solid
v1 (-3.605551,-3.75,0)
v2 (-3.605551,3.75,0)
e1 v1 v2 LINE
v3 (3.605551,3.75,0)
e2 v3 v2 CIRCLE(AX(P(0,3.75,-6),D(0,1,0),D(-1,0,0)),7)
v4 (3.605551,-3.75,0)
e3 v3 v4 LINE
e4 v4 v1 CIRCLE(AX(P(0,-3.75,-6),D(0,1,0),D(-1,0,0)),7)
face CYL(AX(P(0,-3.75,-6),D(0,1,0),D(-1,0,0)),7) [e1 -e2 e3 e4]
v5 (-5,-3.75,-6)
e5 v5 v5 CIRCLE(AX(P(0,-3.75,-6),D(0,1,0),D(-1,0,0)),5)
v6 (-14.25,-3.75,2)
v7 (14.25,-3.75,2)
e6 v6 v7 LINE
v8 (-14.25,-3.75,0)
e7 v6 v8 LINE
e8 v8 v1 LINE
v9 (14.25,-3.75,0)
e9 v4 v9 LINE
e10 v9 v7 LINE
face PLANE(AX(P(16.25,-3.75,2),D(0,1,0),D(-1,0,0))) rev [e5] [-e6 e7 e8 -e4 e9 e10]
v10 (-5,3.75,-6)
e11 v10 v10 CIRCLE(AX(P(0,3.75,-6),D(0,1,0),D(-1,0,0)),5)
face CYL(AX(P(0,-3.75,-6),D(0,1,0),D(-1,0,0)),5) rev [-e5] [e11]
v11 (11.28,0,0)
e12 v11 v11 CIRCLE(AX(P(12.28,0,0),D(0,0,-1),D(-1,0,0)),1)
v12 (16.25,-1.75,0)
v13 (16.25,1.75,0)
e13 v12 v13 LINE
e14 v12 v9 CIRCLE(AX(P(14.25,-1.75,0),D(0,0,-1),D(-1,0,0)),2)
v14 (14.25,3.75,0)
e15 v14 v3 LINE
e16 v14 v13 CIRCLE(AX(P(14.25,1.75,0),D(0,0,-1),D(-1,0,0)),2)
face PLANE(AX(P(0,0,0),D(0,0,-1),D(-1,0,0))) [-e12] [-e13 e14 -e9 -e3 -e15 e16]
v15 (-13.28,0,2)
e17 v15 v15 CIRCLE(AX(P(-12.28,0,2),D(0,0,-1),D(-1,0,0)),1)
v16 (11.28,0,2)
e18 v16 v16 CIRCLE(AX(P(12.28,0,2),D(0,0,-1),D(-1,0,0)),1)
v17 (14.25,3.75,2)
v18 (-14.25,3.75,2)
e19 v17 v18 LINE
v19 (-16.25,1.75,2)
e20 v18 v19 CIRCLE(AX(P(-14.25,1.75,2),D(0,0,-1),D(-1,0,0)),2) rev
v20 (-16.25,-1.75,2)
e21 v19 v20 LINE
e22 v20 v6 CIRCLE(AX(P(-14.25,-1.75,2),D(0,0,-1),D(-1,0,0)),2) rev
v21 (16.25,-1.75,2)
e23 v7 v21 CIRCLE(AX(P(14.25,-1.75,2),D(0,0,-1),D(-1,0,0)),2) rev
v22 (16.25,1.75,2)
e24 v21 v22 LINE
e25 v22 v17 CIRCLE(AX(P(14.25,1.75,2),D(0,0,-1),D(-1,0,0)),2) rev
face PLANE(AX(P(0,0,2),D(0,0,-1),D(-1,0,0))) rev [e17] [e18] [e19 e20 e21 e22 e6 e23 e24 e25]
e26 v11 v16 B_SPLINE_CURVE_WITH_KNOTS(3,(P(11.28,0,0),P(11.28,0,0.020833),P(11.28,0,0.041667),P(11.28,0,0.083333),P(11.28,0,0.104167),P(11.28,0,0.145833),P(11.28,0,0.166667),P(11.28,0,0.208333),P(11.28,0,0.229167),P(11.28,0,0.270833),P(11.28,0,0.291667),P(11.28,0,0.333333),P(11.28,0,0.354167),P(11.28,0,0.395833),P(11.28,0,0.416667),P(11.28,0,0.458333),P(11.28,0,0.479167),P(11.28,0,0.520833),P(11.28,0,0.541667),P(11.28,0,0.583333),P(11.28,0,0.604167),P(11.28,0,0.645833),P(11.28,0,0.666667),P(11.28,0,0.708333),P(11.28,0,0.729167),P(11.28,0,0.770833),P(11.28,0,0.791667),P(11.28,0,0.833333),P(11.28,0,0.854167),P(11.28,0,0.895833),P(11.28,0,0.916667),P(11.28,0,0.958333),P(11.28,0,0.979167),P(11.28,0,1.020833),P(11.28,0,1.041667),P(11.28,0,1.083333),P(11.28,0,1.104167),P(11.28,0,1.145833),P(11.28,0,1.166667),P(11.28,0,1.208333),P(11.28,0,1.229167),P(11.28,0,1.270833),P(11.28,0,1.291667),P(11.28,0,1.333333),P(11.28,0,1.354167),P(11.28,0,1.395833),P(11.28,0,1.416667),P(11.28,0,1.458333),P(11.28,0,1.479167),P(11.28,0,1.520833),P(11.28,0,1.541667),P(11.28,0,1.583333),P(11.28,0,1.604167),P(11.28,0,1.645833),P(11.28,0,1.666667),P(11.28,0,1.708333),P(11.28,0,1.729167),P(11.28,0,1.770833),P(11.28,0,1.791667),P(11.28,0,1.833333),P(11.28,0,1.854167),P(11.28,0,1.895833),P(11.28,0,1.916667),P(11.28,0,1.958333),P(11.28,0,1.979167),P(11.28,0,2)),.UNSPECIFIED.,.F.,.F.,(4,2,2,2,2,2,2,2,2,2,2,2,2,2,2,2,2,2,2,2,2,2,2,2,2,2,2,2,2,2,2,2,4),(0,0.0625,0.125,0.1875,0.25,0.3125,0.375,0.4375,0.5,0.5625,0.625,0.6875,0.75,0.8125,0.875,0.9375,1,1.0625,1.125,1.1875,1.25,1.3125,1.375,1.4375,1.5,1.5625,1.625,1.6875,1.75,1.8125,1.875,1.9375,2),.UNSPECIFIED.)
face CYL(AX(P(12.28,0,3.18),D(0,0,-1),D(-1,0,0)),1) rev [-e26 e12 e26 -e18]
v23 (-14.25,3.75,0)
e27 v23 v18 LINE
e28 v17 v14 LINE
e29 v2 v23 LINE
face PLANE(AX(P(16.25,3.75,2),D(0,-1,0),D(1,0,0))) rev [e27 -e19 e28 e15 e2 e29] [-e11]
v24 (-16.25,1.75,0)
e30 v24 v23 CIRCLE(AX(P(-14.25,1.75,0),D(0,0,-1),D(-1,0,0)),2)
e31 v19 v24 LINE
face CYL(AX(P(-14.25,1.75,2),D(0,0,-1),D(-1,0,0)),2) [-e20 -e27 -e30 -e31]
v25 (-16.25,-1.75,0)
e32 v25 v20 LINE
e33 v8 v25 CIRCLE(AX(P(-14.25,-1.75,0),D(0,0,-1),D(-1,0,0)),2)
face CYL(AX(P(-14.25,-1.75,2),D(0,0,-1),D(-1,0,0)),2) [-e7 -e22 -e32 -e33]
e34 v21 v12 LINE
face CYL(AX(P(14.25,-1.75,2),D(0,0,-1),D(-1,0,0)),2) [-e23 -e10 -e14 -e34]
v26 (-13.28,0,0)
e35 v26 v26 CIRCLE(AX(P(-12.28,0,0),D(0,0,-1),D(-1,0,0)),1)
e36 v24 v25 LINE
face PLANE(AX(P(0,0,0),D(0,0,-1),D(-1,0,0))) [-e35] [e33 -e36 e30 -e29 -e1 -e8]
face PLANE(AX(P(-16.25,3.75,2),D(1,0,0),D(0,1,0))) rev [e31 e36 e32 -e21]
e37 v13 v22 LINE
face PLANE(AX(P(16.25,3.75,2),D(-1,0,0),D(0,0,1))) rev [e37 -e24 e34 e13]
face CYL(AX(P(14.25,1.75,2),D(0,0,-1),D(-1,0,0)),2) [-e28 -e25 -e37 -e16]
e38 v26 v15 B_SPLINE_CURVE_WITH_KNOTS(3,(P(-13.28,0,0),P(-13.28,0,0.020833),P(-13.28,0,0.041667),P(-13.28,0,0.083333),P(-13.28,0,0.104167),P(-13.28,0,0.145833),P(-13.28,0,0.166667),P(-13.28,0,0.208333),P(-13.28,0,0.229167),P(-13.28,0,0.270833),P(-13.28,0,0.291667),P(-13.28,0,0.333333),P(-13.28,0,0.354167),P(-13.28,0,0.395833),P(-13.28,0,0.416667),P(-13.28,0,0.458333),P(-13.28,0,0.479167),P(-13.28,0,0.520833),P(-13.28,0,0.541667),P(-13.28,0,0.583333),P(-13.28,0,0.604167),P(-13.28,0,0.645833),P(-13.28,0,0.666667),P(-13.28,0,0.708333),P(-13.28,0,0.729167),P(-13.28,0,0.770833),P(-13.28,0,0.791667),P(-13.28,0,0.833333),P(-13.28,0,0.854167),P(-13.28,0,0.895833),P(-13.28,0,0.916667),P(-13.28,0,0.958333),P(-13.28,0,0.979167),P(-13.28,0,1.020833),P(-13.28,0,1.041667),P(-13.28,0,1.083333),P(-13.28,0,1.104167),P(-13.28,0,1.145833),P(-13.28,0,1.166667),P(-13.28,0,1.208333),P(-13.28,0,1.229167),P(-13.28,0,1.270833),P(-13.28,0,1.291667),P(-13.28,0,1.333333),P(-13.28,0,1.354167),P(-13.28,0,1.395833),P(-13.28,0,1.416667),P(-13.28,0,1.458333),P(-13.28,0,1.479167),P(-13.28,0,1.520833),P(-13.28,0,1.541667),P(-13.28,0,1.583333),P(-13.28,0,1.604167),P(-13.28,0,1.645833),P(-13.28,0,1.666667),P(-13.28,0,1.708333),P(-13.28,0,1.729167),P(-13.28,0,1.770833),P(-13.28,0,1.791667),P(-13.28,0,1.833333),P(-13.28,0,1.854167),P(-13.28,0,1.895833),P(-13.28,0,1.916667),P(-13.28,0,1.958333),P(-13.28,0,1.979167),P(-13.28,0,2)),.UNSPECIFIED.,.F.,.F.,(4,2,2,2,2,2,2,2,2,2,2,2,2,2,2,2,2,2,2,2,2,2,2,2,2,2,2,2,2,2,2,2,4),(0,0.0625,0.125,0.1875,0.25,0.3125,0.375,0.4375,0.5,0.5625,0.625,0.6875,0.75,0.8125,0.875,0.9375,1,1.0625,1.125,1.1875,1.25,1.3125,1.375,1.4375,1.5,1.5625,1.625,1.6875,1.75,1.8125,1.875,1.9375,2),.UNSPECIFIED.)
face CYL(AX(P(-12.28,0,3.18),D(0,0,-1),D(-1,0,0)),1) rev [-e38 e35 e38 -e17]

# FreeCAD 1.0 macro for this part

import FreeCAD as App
import Part
import Sketcher


def edges_at(feature, points):
    """Names of the edges that pass closest to the given points."""
    edges = feature.Shape.Edges
    near = lambda p: min(range(len(edges)), key=lambda i: edges[i].distToShape(Part.Vertex(*p))[0])
    return sorted({f"Edge{near(p) + 1}" for p in points})

doc = App.newDocument("Part")
body = doc.addObject("PartDesign::Body", "Body")

# Sketch on XY plane
sketch1 = body.newObject("Sketcher::SketchObject", "Sketch")
sketch1.AttachmentSupport = (doc.getObject("XY_Plane"), [""])
sketch1.MapMode = "FlatFace"
sketch1.addGeometry([
    Part.LineSegment(App.Vector(-16, 4, 0), App.Vector(-16, -4, 0)),
    Part.LineSegment(App.Vector(-16, -4, 0), App.Vector(16, -4, 0)),
    Part.LineSegment(App.Vector(16, -4, 0), App.Vector(16, 4, 0)),
    Part.LineSegment(App.Vector(16, 4, 0), App.Vector(-16, 4, 0)),
], False)
sketch1.addConstraint([
    Sketcher.Constraint("Coincident", 0, 2, 1, 1),
    Sketcher.Constraint("Coincident", 1, 2, 2, 1),
    Sketcher.Constraint("Coincident", 2, 2, 3, 1),
    Sketcher.Constraint("Coincident", 3, 2, 0, 1),
    Sketcher.Constraint("Vertical", 0),
    Sketcher.Constraint("Horizontal", 1),
    Sketcher.Constraint("Vertical", 2),
    Sketcher.Constraint("Horizontal", 3),
    Sketcher.Constraint("Symmetric", 0, 2, 2, 2, -1, 1),
    Sketcher.Constraint("DistanceX", 1, 1, 1, 2, 32.5),
    Sketcher.Constraint("DistanceY", 0, 2, 0, 1, 7.5),
])
pad1 = body.newObject("PartDesign::Pad", "Pad")
pad1.Profile = sketch1
pad1.Length = 2

# Sketch on XZ plane
sketch2 = body.newObject("Sketcher::SketchObject", "Sketch001")
sketch2.AttachmentSupport = (doc.getObject("XZ_Plane"), [""])
sketch2.MapMode = "FlatFace"
sketch2.AttachmentOffset = App.Placement(App.Vector(0, 0, -3.75), App.Rotation())
sketch2.addGeometry([
    Part.Circle(App.Vector(0, -6, 0), App.Vector(0, 0, 1), 7),
    Part.Circle(App.Vector(0, -6, 0), App.Vector(0, 0, 1), 5),
], False)
sketch2.addConstraint([
    Sketcher.Constraint("Coincident", 1, 3, 0, 3),
    Sketcher.Constraint("PointOnObject", 0, 3, -2),
    Sketcher.Constraint("Diameter", 0, 14.0),
    Sketcher.Constraint("Diameter", 1, 10.0),
    Sketcher.Constraint("DistanceY", 0, 3, -1, 1, 6.0),
])
pad2 = body.newObject("PartDesign::Pad", "Pad001")
pad2.Profile = sketch2
pad2.Length = 7.5

# Sketch on XY plane
sketch3 = body.newObject("Sketcher::SketchObject", "Sketch002")
sketch3.AttachmentSupport = (doc.getObject("XY_Plane"), [""])
sketch3.MapMode = "FlatFace"
sketch3.addGeometry([
    Part.Circle(App.Vector(12.3, 0, 0), App.Vector(0, 0, 1), 1),
    Part.Circle(App.Vector(-12.3, 0, 0), App.Vector(0, 0, 1), 1),
], False)
sketch3.addConstraint([
    Sketcher.Constraint("Equal", 0, 1),
    Sketcher.Constraint("Symmetric", 0, 3, 1, 3, -1, 1),
    Sketcher.Constraint("PointOnObject", 0, 3, -1),
    Sketcher.Constraint("Diameter", 0, 2.0),
    Sketcher.Constraint("DistanceX", -1, 1, 0, 3, 12.28),
])
pocket1 = body.newObject("PartDesign::Pocket", "Pocket")
pocket1.Profile = sketch3
pocket1.Length = 3.18
pocket1.Reversed = True
doc.recompute()

fillet = body.newObject("PartDesign::Fillet", "Fillet")
fillet.Base = (pocket1, edges_at(pocket1, [
    (-16.25, 3.75, 1),
    (16.25, 3.75, 1),
    (16.25, -3.75, 1),
    (-16.25, -3.75, 1),
]))
fillet.Radius = 2

doc.recompute()
